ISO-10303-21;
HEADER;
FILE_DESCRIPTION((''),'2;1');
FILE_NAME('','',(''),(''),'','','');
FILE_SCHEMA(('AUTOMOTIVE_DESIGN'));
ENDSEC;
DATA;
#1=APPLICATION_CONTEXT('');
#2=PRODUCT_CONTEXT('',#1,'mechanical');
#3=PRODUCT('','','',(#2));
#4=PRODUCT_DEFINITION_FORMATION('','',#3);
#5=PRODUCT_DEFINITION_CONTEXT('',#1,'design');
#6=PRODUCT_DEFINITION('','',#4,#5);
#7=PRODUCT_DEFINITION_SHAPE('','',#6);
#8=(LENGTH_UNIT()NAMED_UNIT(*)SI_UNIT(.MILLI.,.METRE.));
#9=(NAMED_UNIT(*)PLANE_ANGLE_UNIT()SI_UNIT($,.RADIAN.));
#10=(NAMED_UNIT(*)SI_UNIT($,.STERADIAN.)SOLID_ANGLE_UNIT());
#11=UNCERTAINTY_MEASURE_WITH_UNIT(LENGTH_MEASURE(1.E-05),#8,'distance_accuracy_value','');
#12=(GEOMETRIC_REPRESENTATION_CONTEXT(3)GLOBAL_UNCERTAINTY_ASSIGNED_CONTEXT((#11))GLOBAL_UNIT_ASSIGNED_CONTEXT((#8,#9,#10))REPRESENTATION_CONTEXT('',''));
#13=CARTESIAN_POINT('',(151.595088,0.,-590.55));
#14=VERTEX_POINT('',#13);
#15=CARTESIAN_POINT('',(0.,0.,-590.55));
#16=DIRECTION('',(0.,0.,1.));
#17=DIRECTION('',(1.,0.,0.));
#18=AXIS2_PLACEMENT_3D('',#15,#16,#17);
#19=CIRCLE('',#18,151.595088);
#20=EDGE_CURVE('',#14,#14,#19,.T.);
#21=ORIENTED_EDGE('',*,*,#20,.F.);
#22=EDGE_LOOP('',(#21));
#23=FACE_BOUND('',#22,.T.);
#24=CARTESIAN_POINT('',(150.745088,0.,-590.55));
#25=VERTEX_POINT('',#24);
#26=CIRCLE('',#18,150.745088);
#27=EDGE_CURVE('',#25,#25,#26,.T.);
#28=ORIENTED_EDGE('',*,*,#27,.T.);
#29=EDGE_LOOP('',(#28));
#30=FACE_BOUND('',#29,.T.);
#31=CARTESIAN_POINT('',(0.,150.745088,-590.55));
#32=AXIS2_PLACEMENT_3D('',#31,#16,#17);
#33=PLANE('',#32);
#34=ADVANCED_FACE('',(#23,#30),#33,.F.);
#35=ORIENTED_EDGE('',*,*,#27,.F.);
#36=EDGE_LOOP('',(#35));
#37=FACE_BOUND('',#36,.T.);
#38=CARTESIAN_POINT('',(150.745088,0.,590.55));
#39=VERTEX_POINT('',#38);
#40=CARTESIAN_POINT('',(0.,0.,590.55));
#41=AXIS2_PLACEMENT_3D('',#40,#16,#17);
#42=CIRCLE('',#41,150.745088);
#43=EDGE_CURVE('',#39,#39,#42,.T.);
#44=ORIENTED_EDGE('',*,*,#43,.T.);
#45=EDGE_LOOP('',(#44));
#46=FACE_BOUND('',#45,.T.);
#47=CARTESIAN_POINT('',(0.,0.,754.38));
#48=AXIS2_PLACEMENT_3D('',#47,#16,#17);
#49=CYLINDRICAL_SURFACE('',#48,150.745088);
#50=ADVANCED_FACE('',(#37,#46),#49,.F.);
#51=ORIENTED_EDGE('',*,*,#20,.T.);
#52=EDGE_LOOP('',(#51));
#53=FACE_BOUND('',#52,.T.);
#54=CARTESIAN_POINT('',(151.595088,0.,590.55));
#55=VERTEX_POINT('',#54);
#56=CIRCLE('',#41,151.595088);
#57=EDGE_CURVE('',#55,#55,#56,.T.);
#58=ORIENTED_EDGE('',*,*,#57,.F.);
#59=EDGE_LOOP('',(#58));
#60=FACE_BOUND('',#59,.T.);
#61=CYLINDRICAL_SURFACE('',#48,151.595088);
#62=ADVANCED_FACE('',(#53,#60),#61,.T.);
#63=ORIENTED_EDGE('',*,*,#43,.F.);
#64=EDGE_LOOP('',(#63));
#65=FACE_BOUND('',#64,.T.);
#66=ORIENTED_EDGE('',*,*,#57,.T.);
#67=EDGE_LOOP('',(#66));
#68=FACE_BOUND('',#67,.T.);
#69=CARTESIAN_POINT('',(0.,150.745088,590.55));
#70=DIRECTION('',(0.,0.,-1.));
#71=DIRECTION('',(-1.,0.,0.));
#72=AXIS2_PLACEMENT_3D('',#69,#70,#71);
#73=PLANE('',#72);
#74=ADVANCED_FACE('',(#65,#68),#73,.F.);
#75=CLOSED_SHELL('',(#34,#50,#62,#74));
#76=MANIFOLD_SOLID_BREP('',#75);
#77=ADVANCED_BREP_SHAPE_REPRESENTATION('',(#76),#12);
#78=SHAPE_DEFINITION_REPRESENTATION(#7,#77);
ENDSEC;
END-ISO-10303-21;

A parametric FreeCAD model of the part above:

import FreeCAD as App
import Part
import Sketcher
from FreeCAD import Vector
Q = App.Units.Quantity


def add_polygon(sketch, points):
    """Adds a closed chain of lines whose ends are joined by coincident constraints."""
    first, n = sketch.GeometryCount, len(points)
    for a, b in zip(points, points[1:] + points[:1]):
        sketch.addGeometry(Part.LineSegment(App.Vector(*a, 0), App.Vector(*b, 0)), False)
    for i in range(n):
        sketch.addConstraint(Sketcher.Constraint("Coincident", first + i, 2, first + (i + 1) % n, 1))

doc = App.newDocument("Part")
body = doc.addObject("PartDesign::Body", "Body")

sketch1 = body.newObject("Sketcher::SketchObject", "Sketch")
sketch1.AttachmentSupport = (doc.getObject("YZ_Plane"), [""])
sketch1.MapMode = "FlatFace"
add_polygon(sketch1, [(151.595088, 590.55), (150.745088, 590.55), (150.745088, -590.55), (151.595088, -590.55)])
sketch1.addConstraint([
    Sketcher.Constraint("Horizontal", 0),
    Sketcher.Constraint("Vertical", 1),
    Sketcher.Constraint("Horizontal", 2),
    Sketcher.Constraint("Vertical", 3),
    Sketcher.Constraint("DistanceY", 1, 2, 1, 1, Q("46.5 in")),
    Sketcher.Constraint("DistanceY", -1, 1, 0, 2, Q("23.25 in")),
    Sketcher.Constraint("DistanceX", 0, 2, 0, 1, 0.85),
    Sketcher.Constraint("DistanceX", -1, 1, 0, 2, 150.745088),
])
revolution = body.newObject("PartDesign::Revolution", "Revolution")
revolution.Profile = sketch1
revolution.ReferenceAxis = (sketch1, ["V_Axis"])
revolution.Angle = 360

doc.recompute()
